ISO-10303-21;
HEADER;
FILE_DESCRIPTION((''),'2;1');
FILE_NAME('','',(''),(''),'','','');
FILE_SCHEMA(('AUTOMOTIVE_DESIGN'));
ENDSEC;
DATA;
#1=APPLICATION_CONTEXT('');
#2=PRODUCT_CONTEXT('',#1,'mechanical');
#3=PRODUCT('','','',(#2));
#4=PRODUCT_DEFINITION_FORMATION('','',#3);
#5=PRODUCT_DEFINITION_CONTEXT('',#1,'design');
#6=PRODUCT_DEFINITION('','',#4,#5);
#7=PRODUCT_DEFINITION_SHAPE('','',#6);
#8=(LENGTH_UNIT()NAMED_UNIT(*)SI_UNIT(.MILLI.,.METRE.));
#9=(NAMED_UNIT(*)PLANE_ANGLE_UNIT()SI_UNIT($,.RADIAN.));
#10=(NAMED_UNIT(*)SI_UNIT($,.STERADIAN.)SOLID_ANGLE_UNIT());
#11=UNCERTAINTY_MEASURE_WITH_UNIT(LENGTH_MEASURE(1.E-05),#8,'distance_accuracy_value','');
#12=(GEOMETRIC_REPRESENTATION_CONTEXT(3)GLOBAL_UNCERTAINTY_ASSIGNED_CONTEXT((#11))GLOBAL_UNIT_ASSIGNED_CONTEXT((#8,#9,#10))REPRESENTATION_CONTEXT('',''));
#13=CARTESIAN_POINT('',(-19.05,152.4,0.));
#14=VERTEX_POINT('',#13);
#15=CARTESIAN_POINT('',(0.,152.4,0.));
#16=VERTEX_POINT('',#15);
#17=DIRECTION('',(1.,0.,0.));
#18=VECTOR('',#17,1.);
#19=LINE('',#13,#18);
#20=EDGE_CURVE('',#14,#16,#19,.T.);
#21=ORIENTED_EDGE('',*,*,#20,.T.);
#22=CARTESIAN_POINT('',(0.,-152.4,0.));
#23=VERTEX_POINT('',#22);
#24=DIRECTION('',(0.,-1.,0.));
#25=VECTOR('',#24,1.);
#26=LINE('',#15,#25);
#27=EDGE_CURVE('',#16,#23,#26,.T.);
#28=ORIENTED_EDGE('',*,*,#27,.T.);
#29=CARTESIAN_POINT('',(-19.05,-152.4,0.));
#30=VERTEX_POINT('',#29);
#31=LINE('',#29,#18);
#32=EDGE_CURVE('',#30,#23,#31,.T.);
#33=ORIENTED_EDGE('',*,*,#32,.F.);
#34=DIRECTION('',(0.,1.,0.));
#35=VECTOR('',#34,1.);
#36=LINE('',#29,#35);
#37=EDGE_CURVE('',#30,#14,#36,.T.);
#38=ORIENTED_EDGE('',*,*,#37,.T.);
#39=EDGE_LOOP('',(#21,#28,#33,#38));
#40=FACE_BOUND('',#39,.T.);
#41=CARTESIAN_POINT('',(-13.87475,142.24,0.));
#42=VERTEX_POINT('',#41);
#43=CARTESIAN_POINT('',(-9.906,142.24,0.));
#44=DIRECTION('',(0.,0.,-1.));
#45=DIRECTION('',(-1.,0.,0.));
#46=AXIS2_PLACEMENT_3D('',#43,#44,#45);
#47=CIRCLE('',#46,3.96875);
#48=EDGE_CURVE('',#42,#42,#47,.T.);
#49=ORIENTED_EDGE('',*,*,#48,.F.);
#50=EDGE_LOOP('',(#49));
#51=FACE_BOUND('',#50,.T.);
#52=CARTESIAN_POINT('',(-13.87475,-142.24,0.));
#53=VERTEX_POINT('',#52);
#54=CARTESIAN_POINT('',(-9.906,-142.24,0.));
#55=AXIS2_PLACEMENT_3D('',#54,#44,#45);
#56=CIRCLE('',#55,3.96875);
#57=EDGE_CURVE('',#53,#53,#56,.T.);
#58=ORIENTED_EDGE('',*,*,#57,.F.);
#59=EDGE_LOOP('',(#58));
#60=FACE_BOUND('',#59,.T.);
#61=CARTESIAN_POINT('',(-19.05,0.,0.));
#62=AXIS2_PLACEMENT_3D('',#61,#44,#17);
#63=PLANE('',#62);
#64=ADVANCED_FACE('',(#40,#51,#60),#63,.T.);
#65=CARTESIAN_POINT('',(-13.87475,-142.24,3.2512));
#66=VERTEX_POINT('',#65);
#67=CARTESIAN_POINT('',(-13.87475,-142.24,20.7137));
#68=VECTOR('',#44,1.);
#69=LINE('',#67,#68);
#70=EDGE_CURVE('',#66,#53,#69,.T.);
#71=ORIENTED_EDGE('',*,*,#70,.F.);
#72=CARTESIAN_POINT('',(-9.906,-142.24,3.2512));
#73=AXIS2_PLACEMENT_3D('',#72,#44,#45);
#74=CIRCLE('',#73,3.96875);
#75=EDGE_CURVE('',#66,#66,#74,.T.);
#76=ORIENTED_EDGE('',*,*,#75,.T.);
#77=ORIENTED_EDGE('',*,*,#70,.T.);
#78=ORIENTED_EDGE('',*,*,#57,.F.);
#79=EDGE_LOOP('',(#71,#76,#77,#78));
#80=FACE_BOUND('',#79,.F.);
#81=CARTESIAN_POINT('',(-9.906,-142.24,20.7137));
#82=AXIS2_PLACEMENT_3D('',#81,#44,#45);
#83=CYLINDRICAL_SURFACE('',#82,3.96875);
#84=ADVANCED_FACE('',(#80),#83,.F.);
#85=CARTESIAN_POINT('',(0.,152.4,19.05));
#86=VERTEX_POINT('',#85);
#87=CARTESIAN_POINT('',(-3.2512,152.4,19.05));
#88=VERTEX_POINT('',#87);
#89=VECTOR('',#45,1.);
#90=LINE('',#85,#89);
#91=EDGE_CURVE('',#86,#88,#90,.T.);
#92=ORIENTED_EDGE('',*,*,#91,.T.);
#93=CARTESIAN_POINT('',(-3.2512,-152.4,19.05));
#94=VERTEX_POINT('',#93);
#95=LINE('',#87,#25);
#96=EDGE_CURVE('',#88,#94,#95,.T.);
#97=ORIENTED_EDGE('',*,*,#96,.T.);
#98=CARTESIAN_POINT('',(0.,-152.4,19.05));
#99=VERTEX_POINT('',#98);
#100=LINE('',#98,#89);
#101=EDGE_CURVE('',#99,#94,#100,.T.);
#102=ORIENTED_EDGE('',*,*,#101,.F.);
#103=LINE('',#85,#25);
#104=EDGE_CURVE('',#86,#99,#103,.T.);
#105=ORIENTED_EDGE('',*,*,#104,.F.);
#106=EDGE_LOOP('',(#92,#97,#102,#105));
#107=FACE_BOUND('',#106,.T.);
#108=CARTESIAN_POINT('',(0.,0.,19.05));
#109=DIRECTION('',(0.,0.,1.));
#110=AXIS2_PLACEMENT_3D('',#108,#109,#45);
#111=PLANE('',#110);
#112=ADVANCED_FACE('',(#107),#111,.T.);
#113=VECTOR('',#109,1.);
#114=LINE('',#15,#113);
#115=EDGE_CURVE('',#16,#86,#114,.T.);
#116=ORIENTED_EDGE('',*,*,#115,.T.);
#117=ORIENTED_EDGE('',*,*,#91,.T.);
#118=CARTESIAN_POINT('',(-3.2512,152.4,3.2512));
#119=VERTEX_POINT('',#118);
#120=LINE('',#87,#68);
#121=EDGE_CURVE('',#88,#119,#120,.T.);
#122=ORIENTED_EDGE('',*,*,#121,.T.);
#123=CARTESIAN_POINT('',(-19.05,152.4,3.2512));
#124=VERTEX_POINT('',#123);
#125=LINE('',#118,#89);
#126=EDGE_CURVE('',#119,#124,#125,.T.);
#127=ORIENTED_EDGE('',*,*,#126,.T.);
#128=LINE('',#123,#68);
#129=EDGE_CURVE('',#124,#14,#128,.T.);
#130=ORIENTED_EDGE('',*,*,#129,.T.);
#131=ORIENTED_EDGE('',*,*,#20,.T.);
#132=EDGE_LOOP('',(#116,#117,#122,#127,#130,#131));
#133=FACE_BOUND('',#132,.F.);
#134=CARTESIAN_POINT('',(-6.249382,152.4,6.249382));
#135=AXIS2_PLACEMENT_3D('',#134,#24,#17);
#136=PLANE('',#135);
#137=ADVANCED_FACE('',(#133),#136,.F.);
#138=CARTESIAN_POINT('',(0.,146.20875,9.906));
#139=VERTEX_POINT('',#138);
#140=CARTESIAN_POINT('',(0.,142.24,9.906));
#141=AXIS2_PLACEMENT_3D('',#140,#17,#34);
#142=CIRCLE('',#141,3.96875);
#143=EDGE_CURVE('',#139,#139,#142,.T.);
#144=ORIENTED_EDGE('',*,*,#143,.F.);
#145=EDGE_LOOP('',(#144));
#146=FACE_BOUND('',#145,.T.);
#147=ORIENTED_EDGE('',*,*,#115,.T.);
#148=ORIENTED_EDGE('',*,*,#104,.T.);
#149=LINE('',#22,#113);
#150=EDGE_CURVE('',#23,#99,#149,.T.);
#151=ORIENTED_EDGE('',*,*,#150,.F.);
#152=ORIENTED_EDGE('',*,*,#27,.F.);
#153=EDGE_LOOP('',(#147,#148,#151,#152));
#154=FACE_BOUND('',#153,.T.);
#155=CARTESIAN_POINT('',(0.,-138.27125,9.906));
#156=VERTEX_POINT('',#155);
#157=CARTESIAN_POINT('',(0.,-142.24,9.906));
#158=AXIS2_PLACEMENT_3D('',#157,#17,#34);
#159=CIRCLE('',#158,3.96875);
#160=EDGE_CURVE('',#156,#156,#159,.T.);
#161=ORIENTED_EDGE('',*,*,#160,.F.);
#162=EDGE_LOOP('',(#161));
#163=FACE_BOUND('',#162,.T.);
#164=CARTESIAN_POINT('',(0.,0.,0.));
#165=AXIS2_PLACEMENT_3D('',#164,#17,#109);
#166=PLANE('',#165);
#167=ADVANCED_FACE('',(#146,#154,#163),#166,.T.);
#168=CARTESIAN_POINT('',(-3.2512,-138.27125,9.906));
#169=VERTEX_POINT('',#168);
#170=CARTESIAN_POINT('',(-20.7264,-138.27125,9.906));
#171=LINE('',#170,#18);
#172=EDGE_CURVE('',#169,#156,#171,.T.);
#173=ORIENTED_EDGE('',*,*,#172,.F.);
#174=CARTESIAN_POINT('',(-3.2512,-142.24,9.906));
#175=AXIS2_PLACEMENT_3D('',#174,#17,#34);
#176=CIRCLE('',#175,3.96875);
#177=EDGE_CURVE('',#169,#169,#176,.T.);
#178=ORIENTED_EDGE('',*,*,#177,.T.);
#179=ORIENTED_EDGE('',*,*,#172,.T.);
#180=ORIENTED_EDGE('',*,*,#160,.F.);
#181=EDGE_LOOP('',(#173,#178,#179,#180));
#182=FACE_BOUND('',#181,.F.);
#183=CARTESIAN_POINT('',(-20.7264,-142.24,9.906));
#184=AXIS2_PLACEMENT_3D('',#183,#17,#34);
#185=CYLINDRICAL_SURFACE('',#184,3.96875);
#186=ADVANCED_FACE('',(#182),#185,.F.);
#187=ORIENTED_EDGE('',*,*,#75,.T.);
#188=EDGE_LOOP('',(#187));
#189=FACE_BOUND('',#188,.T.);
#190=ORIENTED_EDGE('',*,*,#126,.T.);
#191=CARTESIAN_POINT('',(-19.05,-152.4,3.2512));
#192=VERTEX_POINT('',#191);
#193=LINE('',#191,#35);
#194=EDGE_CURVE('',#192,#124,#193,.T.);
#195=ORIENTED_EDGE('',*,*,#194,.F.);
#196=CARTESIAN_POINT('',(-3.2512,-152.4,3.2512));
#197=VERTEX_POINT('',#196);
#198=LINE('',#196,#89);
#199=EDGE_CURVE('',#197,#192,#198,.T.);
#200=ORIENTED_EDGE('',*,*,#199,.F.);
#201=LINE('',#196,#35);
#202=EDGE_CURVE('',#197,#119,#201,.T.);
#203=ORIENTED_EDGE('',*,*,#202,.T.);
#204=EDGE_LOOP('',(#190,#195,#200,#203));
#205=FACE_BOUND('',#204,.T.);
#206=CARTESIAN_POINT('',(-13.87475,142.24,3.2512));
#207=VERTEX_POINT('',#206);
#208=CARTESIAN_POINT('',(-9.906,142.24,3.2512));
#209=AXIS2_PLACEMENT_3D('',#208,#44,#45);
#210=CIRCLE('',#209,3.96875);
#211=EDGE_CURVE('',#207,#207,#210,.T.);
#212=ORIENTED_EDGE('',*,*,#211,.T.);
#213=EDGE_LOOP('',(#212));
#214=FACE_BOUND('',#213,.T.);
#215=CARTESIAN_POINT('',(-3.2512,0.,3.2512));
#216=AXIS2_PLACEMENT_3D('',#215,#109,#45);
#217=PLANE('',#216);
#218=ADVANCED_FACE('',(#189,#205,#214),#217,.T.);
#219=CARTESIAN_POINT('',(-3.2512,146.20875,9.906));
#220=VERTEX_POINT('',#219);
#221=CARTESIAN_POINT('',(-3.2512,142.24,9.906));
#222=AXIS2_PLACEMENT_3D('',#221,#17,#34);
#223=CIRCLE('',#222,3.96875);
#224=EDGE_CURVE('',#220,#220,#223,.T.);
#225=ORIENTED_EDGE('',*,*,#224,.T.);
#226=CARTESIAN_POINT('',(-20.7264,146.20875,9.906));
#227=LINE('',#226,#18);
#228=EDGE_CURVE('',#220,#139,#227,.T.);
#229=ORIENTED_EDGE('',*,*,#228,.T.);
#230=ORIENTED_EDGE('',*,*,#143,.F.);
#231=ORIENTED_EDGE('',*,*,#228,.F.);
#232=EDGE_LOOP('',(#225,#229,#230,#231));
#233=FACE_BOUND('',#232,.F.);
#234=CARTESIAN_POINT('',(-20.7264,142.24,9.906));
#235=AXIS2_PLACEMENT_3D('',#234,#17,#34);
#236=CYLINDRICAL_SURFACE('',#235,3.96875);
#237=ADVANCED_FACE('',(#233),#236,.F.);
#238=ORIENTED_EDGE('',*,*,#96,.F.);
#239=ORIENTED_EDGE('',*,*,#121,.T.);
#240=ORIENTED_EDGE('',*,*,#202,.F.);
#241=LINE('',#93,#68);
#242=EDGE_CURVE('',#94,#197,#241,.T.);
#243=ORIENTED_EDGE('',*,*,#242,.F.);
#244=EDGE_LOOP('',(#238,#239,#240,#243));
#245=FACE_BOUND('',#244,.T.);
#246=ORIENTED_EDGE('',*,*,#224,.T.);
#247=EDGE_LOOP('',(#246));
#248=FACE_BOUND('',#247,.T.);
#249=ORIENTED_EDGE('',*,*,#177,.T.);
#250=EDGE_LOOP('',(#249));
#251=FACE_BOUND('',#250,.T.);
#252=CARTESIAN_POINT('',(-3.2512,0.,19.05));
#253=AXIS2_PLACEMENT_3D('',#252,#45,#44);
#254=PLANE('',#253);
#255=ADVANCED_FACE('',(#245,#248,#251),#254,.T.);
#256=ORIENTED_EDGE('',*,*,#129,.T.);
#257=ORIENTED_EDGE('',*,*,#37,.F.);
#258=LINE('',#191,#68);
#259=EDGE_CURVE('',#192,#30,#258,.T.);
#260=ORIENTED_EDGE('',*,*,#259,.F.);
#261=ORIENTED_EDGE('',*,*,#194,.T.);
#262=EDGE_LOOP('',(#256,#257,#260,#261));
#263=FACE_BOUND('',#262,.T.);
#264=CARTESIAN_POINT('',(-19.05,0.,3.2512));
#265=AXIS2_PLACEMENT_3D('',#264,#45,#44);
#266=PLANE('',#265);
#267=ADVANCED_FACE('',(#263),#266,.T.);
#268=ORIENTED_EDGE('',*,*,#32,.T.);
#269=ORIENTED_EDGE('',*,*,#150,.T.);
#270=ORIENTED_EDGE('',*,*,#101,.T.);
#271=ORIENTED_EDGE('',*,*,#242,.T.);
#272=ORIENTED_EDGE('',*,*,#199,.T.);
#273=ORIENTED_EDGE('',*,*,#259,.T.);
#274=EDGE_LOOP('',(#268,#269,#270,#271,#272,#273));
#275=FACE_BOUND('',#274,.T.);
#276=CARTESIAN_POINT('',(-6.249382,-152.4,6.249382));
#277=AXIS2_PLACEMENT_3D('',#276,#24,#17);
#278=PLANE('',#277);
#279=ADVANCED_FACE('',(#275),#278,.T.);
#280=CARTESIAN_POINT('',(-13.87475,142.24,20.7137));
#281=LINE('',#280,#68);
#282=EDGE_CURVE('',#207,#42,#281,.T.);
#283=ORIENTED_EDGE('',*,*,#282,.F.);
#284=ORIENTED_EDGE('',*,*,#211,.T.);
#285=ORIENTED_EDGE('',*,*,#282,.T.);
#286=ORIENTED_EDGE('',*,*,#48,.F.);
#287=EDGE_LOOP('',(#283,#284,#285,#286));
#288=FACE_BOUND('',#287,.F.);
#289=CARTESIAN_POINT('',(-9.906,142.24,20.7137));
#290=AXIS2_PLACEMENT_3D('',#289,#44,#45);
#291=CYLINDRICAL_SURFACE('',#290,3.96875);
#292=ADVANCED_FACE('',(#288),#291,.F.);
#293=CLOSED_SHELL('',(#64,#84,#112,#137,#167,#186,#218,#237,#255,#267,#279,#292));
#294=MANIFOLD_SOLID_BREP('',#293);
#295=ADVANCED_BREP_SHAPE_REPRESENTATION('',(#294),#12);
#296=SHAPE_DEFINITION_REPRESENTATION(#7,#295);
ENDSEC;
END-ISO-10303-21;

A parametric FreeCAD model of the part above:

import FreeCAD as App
import Part
import Sketcher
from FreeCAD import Vector
Q = App.Units.Quantity

doc = App.newDocument("Part")
body = doc.addObject("PartDesign::Body", "Body")

# Sketch on XZ plane
sketch1 = doc.addObject("Sketcher::SketchObject", "Sketch")
body.addObject(sketch1)
sketch1.AttachmentSupport = (doc.XZ_Plane, [""])
sketch1.MapMode = "FlatFace"
sketch1.addGeometry(Part.LineSegment(Vector(-19.05, 0, 0), Vector(0, 0, 0)), False)
sketch1.addGeometry(Part.LineSegment(Vector(0, 0, 0), Vector(0, 19.05, 0)), False)
sketch1.addGeometry(Part.LineSegment(Vector(0, 19.05, 0), Vector(-3.2512, 19.05, 0)), False)
sketch1.addGeometry(Part.LineSegment(Vector(-3.2512, 19.05, 0), Vector(-3.2512, 3.2512, 0)), False)
sketch1.addGeometry(Part.LineSegment(Vector(-3.2512, 3.2512, 0), Vector(-19.05, 3.2512, 0)), False)
sketch1.addGeometry(Part.LineSegment(Vector(-19.05, 3.2512, 0), Vector(-19.05, 0, 0)), False)
sketch1.addConstraint(Sketcher.Constraint("Coincident", 0, 2, 1, 1))
sketch1.addConstraint(Sketcher.Constraint("Coincident", 1, 2, 2, 1))
sketch1.addConstraint(Sketcher.Constraint("Coincident", 2, 2, 3, 1))
sketch1.addConstraint(Sketcher.Constraint("Coincident", 3, 2, 4, 1))
sketch1.addConstraint(Sketcher.Constraint("Coincident", 4, 2, 5, 1))
sketch1.addConstraint(Sketcher.Constraint("Coincident", 5, 2, 0, 1))
sketch1.addConstraint(Sketcher.Constraint("Horizontal", 0))
sketch1.addConstraint(Sketcher.Constraint("Vertical", 1))
sketch1.addConstraint(Sketcher.Constraint("Horizontal", 2))
sketch1.addConstraint(Sketcher.Constraint("Vertical", 3))
sketch1.addConstraint(Sketcher.Constraint("Horizontal", 4))
sketch1.addConstraint(Sketcher.Constraint("Vertical", 5))
sketch1.addConstraint(Sketcher.Constraint("Coincident", 0, 2, -1, 1))
sketch1.addConstraint(Sketcher.Constraint("Equal", 0, 1))
sketch1.addConstraint(Sketcher.Constraint("Equal", 4, 3))
sketch1.addConstraint(Sketcher.Constraint("DistanceX", 0, 1, 0, 2, Q("0.75 in")))
sketch1.addConstraint(Sketcher.Constraint("DistanceX", 2, 2, 2, 1, Q("0.128 in")))
pad1 = doc.addObject("PartDesign::Pad", "Pad")
body.addObject(pad1)
pad1.Profile = sketch1
pad1.Length = Q("12 in")
pad1.Midplane = True

# Sketch on XY plane
sketch2 = doc.addObject("Sketcher::SketchObject", "Sketch001")
body.addObject(sketch2)
sketch2.AttachmentSupport = (doc.XY_Plane, [""])
sketch2.MapMode = "FlatFace"
sketch2.AttachmentOffset = App.Placement(Vector(0, 0, 0.128 * 25.4), App.Rotation())
sketch2.addGeometry(Part.Circle(Vector(-9.906, -142.24, 0), Vector(0, 0, 1), 3.96875), False)
sketch2.addGeometry(Part.Circle(Vector(-9.906, 142.24, 0), Vector(0, 0, 1), 3.96875), False)
sketch2.addConstraint(Sketcher.Constraint("Equal", 0, 1))
sketch2.addConstraint(Sketcher.Constraint("Symmetric", 0, 3, 1, 3, -1))
sketch2.addConstraint(Sketcher.Constraint("Diameter", 0, Q("0.3125 in")))
sketch2.addConstraint(Sketcher.Constraint("DistanceY", 0, 3, -1, 1, Q("5.6 in")))
sketch2.addConstraint(Sketcher.Constraint("DistanceX", 0, 3, -1, 1, Q("0.39 in")))
doc.recompute()
hole = doc.addObject("PartDesign::Hole", "Hole")
body.addObject(hole)
hole.Profile = sketch2
hole.ThreadType = "None"
hole.Diameter = Q("0.3125 in")
hole.DepthType = "Dimension"
hole.Depth = Q("0.6875 in")
hole.DrillPoint = "Angled"
hole.DrillPointAngle = 118

# Sketch on YZ plane
sketch3 = doc.addObject("Sketcher::SketchObject", "Sketch002")
body.addObject(sketch3)
sketch3.AttachmentSupport = (doc.YZ_Plane, [""])
sketch3.MapMode = "FlatFace"
sketch3.AttachmentOffset = App.Placement(Vector(0, 0, -0.128 * 25.4), App.Rotation())
sketch3.addGeometry(Part.Circle(Vector(142.24, 9.906, 0), Vector(0, 0, 1), 3.96875), False)
sketch3.addGeometry(Part.Circle(Vector(-142.24, 9.906, 0), Vector(0, 0, 1), 3.96875), False)
sketch3.addConstraint(Sketcher.Constraint("Equal", 0, 1))
sketch3.addConstraint(Sketcher.Constraint("Symmetric", 0, 3, 1, 3, -2))
sketch3.addConstraint(Sketcher.Constraint("Diameter", 0, Q("0.3125 in")))
sketch3.addConstraint(Sketcher.Constraint("DistanceX", -1, 1, 0, 3, Q("5.6 in")))
sketch3.addConstraint(Sketcher.Constraint("DistanceY", -1, 1, 0, 3, Q("0.39 in")))
doc.recompute()
hole2 = doc.addObject("PartDesign::Hole", "Hole001")
body.addObject(hole2)
hole2.Profile = sketch3
hole2.ThreadType = "None"
hole2.Diameter = Q("0.3125 in")
hole2.DepthType = "Dimension"
hole2.Depth = Q("0.688 in")
hole2.DrillPoint = "Angled"
hole2.DrillPointAngle = 118
hole2.Reversed = True

doc.recompute()
